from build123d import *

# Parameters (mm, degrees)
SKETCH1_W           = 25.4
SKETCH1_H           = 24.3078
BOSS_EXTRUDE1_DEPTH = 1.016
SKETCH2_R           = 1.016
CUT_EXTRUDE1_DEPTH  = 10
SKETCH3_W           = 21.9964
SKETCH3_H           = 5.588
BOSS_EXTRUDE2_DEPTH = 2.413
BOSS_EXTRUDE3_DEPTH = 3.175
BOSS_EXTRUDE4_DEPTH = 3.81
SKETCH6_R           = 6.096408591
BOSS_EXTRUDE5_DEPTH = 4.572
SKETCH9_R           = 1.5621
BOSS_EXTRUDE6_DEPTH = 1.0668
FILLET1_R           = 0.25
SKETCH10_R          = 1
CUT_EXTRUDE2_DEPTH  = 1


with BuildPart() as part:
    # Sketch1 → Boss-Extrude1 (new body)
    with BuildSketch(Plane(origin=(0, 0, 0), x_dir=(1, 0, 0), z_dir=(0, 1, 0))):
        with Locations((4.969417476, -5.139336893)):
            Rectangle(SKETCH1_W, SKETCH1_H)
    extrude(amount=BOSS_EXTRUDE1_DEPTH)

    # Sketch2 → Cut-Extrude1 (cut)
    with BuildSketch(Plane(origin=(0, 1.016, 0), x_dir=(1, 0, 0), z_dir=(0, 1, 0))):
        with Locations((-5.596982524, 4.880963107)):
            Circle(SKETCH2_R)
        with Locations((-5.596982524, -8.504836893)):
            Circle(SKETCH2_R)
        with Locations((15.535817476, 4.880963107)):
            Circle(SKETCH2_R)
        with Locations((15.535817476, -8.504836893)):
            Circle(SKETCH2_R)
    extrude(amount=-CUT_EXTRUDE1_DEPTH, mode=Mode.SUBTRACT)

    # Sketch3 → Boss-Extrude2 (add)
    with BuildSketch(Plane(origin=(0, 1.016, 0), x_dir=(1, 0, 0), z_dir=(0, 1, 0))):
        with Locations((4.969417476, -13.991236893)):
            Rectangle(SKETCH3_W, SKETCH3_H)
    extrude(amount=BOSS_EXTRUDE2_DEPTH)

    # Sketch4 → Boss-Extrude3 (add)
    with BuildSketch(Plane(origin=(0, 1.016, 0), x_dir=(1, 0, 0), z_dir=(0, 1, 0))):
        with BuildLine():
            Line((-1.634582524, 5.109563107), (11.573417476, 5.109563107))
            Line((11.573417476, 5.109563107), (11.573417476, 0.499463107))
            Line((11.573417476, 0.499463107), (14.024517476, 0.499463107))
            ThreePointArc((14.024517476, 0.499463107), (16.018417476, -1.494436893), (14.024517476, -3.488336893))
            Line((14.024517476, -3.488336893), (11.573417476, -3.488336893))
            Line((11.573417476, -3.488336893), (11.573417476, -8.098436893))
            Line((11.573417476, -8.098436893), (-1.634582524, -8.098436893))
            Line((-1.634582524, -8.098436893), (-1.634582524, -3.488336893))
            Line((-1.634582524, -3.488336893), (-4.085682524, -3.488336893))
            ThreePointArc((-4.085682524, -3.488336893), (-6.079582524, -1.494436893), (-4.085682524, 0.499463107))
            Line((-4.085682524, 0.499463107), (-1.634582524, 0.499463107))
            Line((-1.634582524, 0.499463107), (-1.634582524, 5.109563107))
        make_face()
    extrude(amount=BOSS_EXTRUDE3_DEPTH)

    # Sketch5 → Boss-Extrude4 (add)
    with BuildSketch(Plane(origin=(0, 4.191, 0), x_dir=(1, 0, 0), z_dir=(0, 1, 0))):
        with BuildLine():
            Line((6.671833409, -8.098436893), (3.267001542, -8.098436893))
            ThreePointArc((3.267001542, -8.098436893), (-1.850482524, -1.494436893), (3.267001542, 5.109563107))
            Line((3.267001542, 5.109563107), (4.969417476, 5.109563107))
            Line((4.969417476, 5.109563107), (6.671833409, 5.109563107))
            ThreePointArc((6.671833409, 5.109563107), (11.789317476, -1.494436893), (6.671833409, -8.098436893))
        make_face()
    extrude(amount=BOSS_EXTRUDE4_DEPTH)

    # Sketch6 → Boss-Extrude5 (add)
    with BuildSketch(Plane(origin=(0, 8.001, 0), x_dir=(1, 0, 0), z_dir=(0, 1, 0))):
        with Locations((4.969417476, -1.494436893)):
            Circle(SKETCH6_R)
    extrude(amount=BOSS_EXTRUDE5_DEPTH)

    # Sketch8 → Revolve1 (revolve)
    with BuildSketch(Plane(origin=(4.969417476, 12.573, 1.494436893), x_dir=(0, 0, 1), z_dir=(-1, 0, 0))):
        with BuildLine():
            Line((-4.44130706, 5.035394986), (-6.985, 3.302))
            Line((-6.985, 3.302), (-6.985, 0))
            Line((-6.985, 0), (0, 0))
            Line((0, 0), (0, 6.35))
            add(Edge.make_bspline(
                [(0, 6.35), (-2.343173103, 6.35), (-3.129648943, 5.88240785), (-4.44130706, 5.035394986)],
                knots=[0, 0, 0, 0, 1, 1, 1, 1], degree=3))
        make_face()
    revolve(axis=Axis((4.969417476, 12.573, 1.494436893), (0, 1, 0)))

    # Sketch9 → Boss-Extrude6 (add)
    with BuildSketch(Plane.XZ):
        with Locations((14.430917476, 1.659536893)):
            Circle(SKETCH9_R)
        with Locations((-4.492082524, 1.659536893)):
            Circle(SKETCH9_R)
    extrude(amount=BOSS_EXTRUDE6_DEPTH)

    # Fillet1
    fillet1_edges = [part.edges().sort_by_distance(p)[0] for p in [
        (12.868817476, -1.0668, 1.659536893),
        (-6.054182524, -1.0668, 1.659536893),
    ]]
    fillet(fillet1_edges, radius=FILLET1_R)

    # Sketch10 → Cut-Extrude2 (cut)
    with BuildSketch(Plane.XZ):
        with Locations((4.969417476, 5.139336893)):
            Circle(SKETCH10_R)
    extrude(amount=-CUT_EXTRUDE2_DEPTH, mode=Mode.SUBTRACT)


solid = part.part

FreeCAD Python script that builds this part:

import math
import FreeCAD as App
import Part
import Sketcher
Q = App.Units.Quantity


def edges_at(feature, points):
    """Names of the edges that pass closest to the given points."""
    edges = feature.Shape.Edges
    near = lambda p: min(range(len(edges)), key=lambda i: edges[i].distToShape(Part.Vertex(*p))[0])
    return sorted({f"Edge{near(p) + 1}" for p in points})

doc = App.newDocument("Part")
body = doc.addObject("PartDesign::Body", "Body")

# Sketch on XZ plane
sketch1 = doc.addObject("Sketcher::SketchObject", "Sketch")
body.addObject(sketch1)
sketch1.AttachmentSupport = (doc.XZ_Plane, [""])
sketch1.MapMode = "FlatFace"
sketch1.addGeometry([
    Part.LineSegment(App.Vector(-7.730583, -7.014563, 0), App.Vector(-7.730583, 17.293237, 0)),
    Part.LineSegment(App.Vector(-7.730583, 17.293237, 0), App.Vector(17.669417, 17.293237, 0)),
    Part.LineSegment(App.Vector(17.669417, 17.293237, 0), App.Vector(17.669417, -7.014563, 0)),
    Part.LineSegment(App.Vector(17.669417, -7.014563, 0), App.Vector(-7.730583, -7.014563, 0)),
], False)
sketch1.addConstraint([
    Sketcher.Constraint("Coincident", 0, 2, 1, 1),
    Sketcher.Constraint("Coincident", 1, 2, 2, 1),
    Sketcher.Constraint("Coincident", 2, 2, 3, 1),
    Sketcher.Constraint("Coincident", 3, 2, 0, 1),
    Sketcher.Constraint("Vertical", 0),
    Sketcher.Constraint("Horizontal", 1),
    Sketcher.Constraint("Vertical", 2),
    Sketcher.Constraint("Horizontal", 3),
    Sketcher.Constraint("DistanceX", 1, 1, 1, 2, Q("1 in")),
    Sketcher.Constraint("DistanceY", 0, 1, 0, 2, Q("0.957 in")),
    Sketcher.Constraint("DistanceX", 0, 2, -1, 1, 7.730583),
    Sketcher.Constraint("DistanceY", -1, 1, 0, 2, 17.293237),
])
pad1 = doc.addObject("PartDesign::Pad", "Pad")
body.addObject(pad1)
pad1.Profile = sketch1
pad1.Length = Q("0.04 in")
pad1.Reversed = True

# Sketch on XZ plane
sketch2 = doc.addObject("Sketcher::SketchObject", "Sketch001")
body.addObject(sketch2)
sketch2.AttachmentSupport = (doc.XZ_Plane, [""])
sketch2.MapMode = "FlatFace"
sketch2.AttachmentOffset = App.Placement(App.Vector(0, 0, -0.04 * 25.4), App.Rotation())
sketch2.addGeometry([
    Part.Circle(App.Vector(-5.596983, -4.880963, 0), App.Vector(0, 0, 1), 1.016),
    Part.Circle(App.Vector(-5.596983, 8.504837, 0), App.Vector(0, 0, 1), 1.016),
    Part.Circle(App.Vector(15.535817, -4.880963, 0), App.Vector(0, 0, 1), 1.016),
    Part.Circle(App.Vector(15.535817, 8.504837, 0), App.Vector(0, 0, 1), 1.016),
], False)
sketch2.addConstraint([
    Sketcher.Constraint("Equal", 0, 1),
    Sketcher.Constraint("Equal", 1, 2),
    Sketcher.Constraint("Equal", 2, 3),
    Sketcher.Constraint("Horizontal", 0, 3, 2, 3),
    Sketcher.Constraint("Horizontal", 1, 3, 3, 3),
    Sketcher.Constraint("Vertical", 0, 3, 1, 3),
    Sketcher.Constraint("Vertical", 2, 3, 3, 3),
    Sketcher.Constraint("Diameter", 0, Q("0.08 in")),
    Sketcher.Constraint("DistanceY", 0, 3, 1, 3, Q("0.527 in")),
    Sketcher.Constraint("DistanceX", 0, 3, 2, 3, Q("0.832 in")),
    Sketcher.Constraint("DistanceX", 0, 3, -1, 1, 5.596983),
    Sketcher.Constraint("DistanceY", 0, 3, -1, 1, 4.880963),
])
pocket1 = doc.addObject("PartDesign::Pocket", "Pocket")
body.addObject(pocket1)
pocket1.Profile = sketch2
pocket1.Length = 10
pocket1.Reversed = True

# Sketch on XZ plane
sketch3 = doc.addObject("Sketcher::SketchObject", "Sketch002")
body.addObject(sketch3)
sketch3.AttachmentSupport = (doc.XZ_Plane, [""])
sketch3.MapMode = "FlatFace"
sketch3.AttachmentOffset = App.Placement(App.Vector(0, 0, -0.04 * 25.4), App.Rotation())
sketch3.addGeometry([
    Part.LineSegment(App.Vector(-6.028783, 11.197237, 0), App.Vector(-6.028783, 16.785237, 0)),
    Part.LineSegment(App.Vector(-6.028783, 16.785237, 0), App.Vector(15.967617, 16.785237, 0)),
    Part.LineSegment(App.Vector(15.967617, 16.785237, 0), App.Vector(15.967617, 11.197237, 0)),
    Part.LineSegment(App.Vector(15.967617, 11.197237, 0), App.Vector(-6.028783, 11.197237, 0)),
], False)
sketch3.addConstraint([
    Sketcher.Constraint("Coincident", 0, 2, 1, 1),
    Sketcher.Constraint("Coincident", 1, 2, 2, 1),
    Sketcher.Constraint("Coincident", 2, 2, 3, 1),
    Sketcher.Constraint("Coincident", 3, 2, 0, 1),
    Sketcher.Constraint("Vertical", 0),
    Sketcher.Constraint("Horizontal", 1),
    Sketcher.Constraint("Vertical", 2),
    Sketcher.Constraint("Horizontal", 3),
    Sketcher.Constraint("DistanceY", 0, 1, 0, 2, Q("0.22 in")),
    Sketcher.Constraint("DistanceX", 1, 1, 1, 2, Q("0.866 in")),
    Sketcher.Constraint("DistanceX", 0, 2, -1, 1, 6.028783),
    Sketcher.Constraint("DistanceY", -1, 1, 0, 2, 16.785237),
])
pad2 = doc.addObject("PartDesign::Pad", "Pad001")
body.addObject(pad2)
pad2.Profile = sketch3
pad2.Length = Q("0.095 in")
pad2.Reversed = True

# Sketch on XZ plane
sketch4 = doc.addObject("Sketcher::SketchObject", "Sketch003")
body.addObject(sketch4)
sketch4.AttachmentSupport = (doc.XZ_Plane, [""])
sketch4.MapMode = "FlatFace"
sketch4.AttachmentOffset = App.Placement(App.Vector(0, 0, -0.04 * 25.4), App.Rotation())
sketch4.addGeometry([
    Part.LineSegment(App.Vector(11.573417, -5.109563, 0), App.Vector(-1.634583, -5.109563, 0)),  # 0
    Part.LineSegment(App.Vector(-1.634583, -5.109563, 0), App.Vector(-1.634583, -0.499463, 0)),  # 1
    Part.LineSegment(App.Vector(-1.634583, -0.499463, 0), App.Vector(-4.085683, -0.499463, 0)),  # 2
    Part.ArcOfCircle(Part.Circle(App.Vector(-4.085683, 1.494437, 0), App.Vector(0, 0, 1), 1.9939), math.radians(90), math.radians(270)),  # 3
    Part.LineSegment(App.Vector(-4.085683, 3.488337, 0), App.Vector(-1.634583, 3.488337, 0)),  # 4
    Part.LineSegment(App.Vector(-1.634583, 3.488337, 0), App.Vector(-1.634583, 8.098437, 0)),  # 5
    Part.LineSegment(App.Vector(-1.634583, 8.098437, 0), App.Vector(11.573417, 8.098437, 0)),  # 6
    Part.LineSegment(App.Vector(11.573417, 8.098437, 0), App.Vector(11.573417, 3.488337, 0)),  # 7
    Part.LineSegment(App.Vector(11.573417, 3.488337, 0), App.Vector(14.024517, 3.488337, 0)),  # 8
    Part.ArcOfCircle(Part.Circle(App.Vector(14.024517, 1.494437, 0), App.Vector(0, 0, 1), 1.9939), math.radians(-90), math.radians(90)),  # 9
    Part.LineSegment(App.Vector(14.024517, -0.499463, 0), App.Vector(11.573417, -0.499463, 0)),  # 10
    Part.LineSegment(App.Vector(11.573417, -0.499463, 0), App.Vector(11.573417, -5.109563, 0)),  # 11
], False)
sketch4.addConstraint([
    Sketcher.Constraint("Coincident", 0, 2, 1, 1),
    Sketcher.Constraint("Coincident", 1, 2, 2, 1),
    Sketcher.Constraint("Tangent", 2, 2, 3, 2),
    Sketcher.Constraint("Tangent", 3, 1, 4, 1),
    Sketcher.Constraint("Coincident", 4, 2, 5, 1),
    Sketcher.Constraint("Coincident", 5, 2, 6, 1),
    Sketcher.Constraint("Coincident", 6, 2, 7, 1),
    Sketcher.Constraint("Coincident", 7, 2, 8, 1),
    Sketcher.Constraint("Tangent", 8, 2, 9, 2),
    Sketcher.Constraint("Tangent", 9, 1, 10, 1),
    Sketcher.Constraint("Coincident", 10, 2, 11, 1),
    Sketcher.Constraint("Coincident", 11, 2, 0, 1),
    Sketcher.Constraint("Horizontal", 0),
    Sketcher.Constraint("Vertical", 1),
    Sketcher.Constraint("Horizontal", 2),
    Sketcher.Constraint("Horizontal", 4),
    Sketcher.Constraint("Vertical", 5),
    Sketcher.Constraint("Horizontal", 6),
    Sketcher.Constraint("Vertical", 7),
    Sketcher.Constraint("Horizontal", 8),
    Sketcher.Constraint("Horizontal", 10),
    Sketcher.Constraint("Vertical", 11),
    Sketcher.Constraint("Equal", 3, 9),
    Sketcher.Constraint("Horizontal", 3, 3, 9, 3),
    Sketcher.Constraint("Vertical", 1, 2, 4, 2),
    Sketcher.Constraint("Vertical", 7, 2, 10, 2),
    Sketcher.Constraint("Equal", 4, 8),
    Sketcher.Constraint("Equal", 1, 5),
    Sketcher.Constraint("DistanceX", 0, 2, 0, 1, Q("0.52 in")),
    Sketcher.Constraint("Radius", 3, Q("0.0785 in")),
    Sketcher.Constraint("DistanceY", 0, 2, 3, 3, Q("0.26 in")),
    Sketcher.Constraint("DistanceX", 2, 2, 2, 1, Q("0.0965 in")),
    Sketcher.Constraint("DistanceX", 3, 3, -1, 1, 4.085683),
    Sketcher.Constraint("DistanceY", -1, 1, 3, 3, 1.494437),
])
pad3 = doc.addObject("PartDesign::Pad", "Pad002")
body.addObject(pad3)
pad3.Profile = sketch4
pad3.Length = Q("0.125 in")
pad3.Reversed = True

# Sketch on XZ plane
sketch5 = doc.addObject("Sketcher::SketchObject", "Sketch004")
body.addObject(sketch5)
sketch5.AttachmentSupport = (doc.XZ_Plane, [""])
sketch5.MapMode = "FlatFace"
sketch5.AttachmentOffset = App.Placement(App.Vector(0, 0, -0.165 * 25.4), App.Rotation())
sketch5.addGeometry([
    Part.LineSegment(App.Vector(3.267002, 8.098437, 0), App.Vector(6.671833, 8.098437, 0)),
    Part.ArcOfCircle(Part.Circle(App.Vector(4.969417, 1.494437, 0), App.Vector(0, 0, 1), 6.8199), math.radians(-75.544691), math.radians(75.544691)),
    Part.LineSegment(App.Vector(6.671833, -5.109563, 0), App.Vector(3.267002, -5.109563, 0)),
    Part.ArcOfCircle(Part.Circle(App.Vector(4.969417, 1.494437, 0), App.Vector(0, 0, 1), 6.8199), math.radians(104.455309), math.radians(255.544691)),
], False)
sketch5.addConstraint([
    Sketcher.Constraint("Coincident", 0, 2, 1, 2),
    Sketcher.Constraint("Coincident", 1, 1, 2, 1),
    Sketcher.Constraint("Coincident", 2, 2, 3, 2),
    Sketcher.Constraint("Coincident", 3, 1, 0, 1),
    Sketcher.Constraint("Horizontal", 0),
    Sketcher.Constraint("Horizontal", 2),
    Sketcher.Constraint("Coincident", 3, 3, 1, 3),
    Sketcher.Constraint("Equal", 1, 3),
    Sketcher.Constraint("Vertical", 0, 2, 1, 1),
    Sketcher.Constraint("Radius", 1, Q("0.2685 in")),
    Sketcher.Constraint("DistanceY", 1, 3, 0, 2, Q("0.26 in")),
    Sketcher.Constraint("DistanceX", -1, 1, 2, 2, 3.267002),
    Sketcher.Constraint("DistanceY", -1, 1, 1, 3, 1.494437),
])
pad4 = doc.addObject("PartDesign::Pad", "Pad003")
body.addObject(pad4)
pad4.Profile = sketch5
pad4.Length = Q("0.15 in")
pad4.Reversed = True

# Sketch on XZ plane
sketch6 = doc.addObject("Sketcher::SketchObject", "Sketch005")
body.addObject(sketch6)
sketch6.AttachmentSupport = (doc.XZ_Plane, [""])
sketch6.MapMode = "FlatFace"
sketch6.AttachmentOffset = App.Placement(App.Vector(0, 0, -0.315 * 25.4), App.Rotation())
sketch6.addGeometry(Part.Circle(App.Vector(4.969417, 1.494437, 0), App.Vector(0, 0, 1), 6.096409), False)
sketch6.addConstraint([
    Sketcher.Constraint("Diameter", 0, 12.192817),
    Sketcher.Constraint("DistanceX", -1, 1, 0, 3, 4.969417),
    Sketcher.Constraint("DistanceY", -1, 1, 0, 3, 1.494437),
])
pad5 = doc.addObject("PartDesign::Pad", "Pad004")
body.addObject(pad5)
pad5.Profile = sketch6
pad5.Length = Q("0.18 in")
pad5.Reversed = True

# Sketch on YZ plane
sketch7 = doc.addObject("Sketcher::SketchObject", "Sketch006")
body.addObject(sketch7)
sketch7.AttachmentSupport = (doc.YZ_Plane, [""])
sketch7.MapMode = "FlatFace"
sketch7.AttachmentOffset = App.Placement(App.Vector(0, 0, 4.969417), App.Rotation())
sketch7.addGeometry([
    Part.LineSegment(App.Vector(17.608395, -2.94687, 0), App.Vector(15.875, -5.490563, 0)),  # 0
    Part.LineSegment(App.Vector(15.875, -5.490563, 0), App.Vector(12.573, -5.490563, 0)),  # 1
    Part.LineSegment(App.Vector(12.573, -5.490563, 0), App.Vector(12.573, 1.494437, 0)),  # 2
    Part.LineSegment(App.Vector(12.573, 1.494437, 0), App.Vector(18.923, 1.494437, 0)),  # 3
    Part.BSplineCurve([App.Vector(18.923, 1.494437, 0), App.Vector(18.923, -0.848736, 0), App.Vector(18.455408, -1.635212, 0), App.Vector(17.608395, -2.94687, 0)], [4, 4], [0, 1], False, 3, [1, 1, 1, 1], False),  # 4
], False)
sketch7.addGeometry(Part.LineSegment(App.Vector(12.573, 1.494437, 0), App.Vector(18.923, 1.494437, 0)), True)  # axis
sketch7.addConstraint([
    Sketcher.Constraint("Block", 4),
    Sketcher.Constraint("Coincident", 0, 2, 1, 1),
    Sketcher.Constraint("Coincident", 1, 2, 2, 1),
    Sketcher.Constraint("Coincident", 2, 2, 3, 1),
    Sketcher.Constraint("Coincident", 3, 2, 4, 1),
    Sketcher.Constraint("Coincident", 4, 2, 0, 1),
    Sketcher.Constraint("Horizontal", 1),
    Sketcher.Constraint("Vertical", 2),
    Sketcher.Constraint("Horizontal", 3),
    Sketcher.Constraint("Horizontal", 5),
    Sketcher.Constraint("Coincident", 5, 1, 2, 2),
    Sketcher.Constraint("Equal", 3, 5),
    Sketcher.Constraint("DistanceX", 1, 2, 1, 1, Q("0.13 in")),
    Sketcher.Constraint("DistanceX", 3, 1, 3, 2, Q("0.25 in")),
    Sketcher.Constraint("DistanceY", 2, 1, 2, 2, Q("0.275 in")),
])
revolution = doc.addObject("PartDesign::Revolution", "Revolution")
body.addObject(revolution)
revolution.Profile = sketch7
revolution.ReferenceAxis = (sketch7, ["Axis0"])
revolution.Angle = 360

# Sketch on XZ plane
sketch8 = doc.addObject("Sketcher::SketchObject", "Sketch007")
body.addObject(sketch8)
sketch8.AttachmentSupport = (doc.XZ_Plane, [""])
sketch8.MapMode = "FlatFace"
sketch8.addGeometry([
    Part.Circle(App.Vector(14.430917, 1.659537, 0), App.Vector(0, 0, 1), 1.5621),
    Part.Circle(App.Vector(-4.492083, 1.659537, 0), App.Vector(0, 0, 1), 1.5621),
], False)
sketch8.addConstraint([
    Sketcher.Constraint("Equal", 0, 1),
    Sketcher.Constraint("Horizontal", 0, 3, 1, 3),
    Sketcher.Constraint("Diameter", 0, Q("0.123 in")),
    Sketcher.Constraint("DistanceX", 1, 3, 0, 3, Q("0.745 in")),
    Sketcher.Constraint("DistanceX", -1, 1, 0, 3, 14.430917),
    Sketcher.Constraint("DistanceY", -1, 1, 0, 3, 1.659537),
])
pad6 = doc.addObject("PartDesign::Pad", "Pad005")
body.addObject(pad6)
pad6.Profile = sketch8
pad6.Length = Q("0.042 in")
doc.recompute()

fillet = doc.addObject("PartDesign::Fillet", "Fillet")
body.addObject(fillet)
fillet.Base = (pad6, edges_at(pad6, [(12.869, -1.067, 1.66), (-6.054, -1.067, 1.66)]))
fillet.Radius = 0.25

# Sketch on XZ plane
sketch9 = doc.addObject("Sketcher::SketchObject", "Sketch008")
body.addObject(sketch9)
sketch9.AttachmentSupport = (doc.XZ_Plane, [""])
sketch9.MapMode = "FlatFace"
sketch9.addGeometry(Part.Circle(App.Vector(4.969417, 5.139337, 0), App.Vector(0, 0, 1), 1), False)
sketch9.addConstraint([
    Sketcher.Constraint("Diameter", 0, 2.0),
    Sketcher.Constraint("DistanceX", -1, 1, 0, 3, 4.969417),
    Sketcher.Constraint("DistanceY", -1, 1, 0, 3, 5.139337),
])
pocket2 = doc.addObject("PartDesign::Pocket", "Pocket001")
body.addObject(pocket2)
pocket2.Profile = sketch9
pocket2.Length = 1

doc.recompute()
